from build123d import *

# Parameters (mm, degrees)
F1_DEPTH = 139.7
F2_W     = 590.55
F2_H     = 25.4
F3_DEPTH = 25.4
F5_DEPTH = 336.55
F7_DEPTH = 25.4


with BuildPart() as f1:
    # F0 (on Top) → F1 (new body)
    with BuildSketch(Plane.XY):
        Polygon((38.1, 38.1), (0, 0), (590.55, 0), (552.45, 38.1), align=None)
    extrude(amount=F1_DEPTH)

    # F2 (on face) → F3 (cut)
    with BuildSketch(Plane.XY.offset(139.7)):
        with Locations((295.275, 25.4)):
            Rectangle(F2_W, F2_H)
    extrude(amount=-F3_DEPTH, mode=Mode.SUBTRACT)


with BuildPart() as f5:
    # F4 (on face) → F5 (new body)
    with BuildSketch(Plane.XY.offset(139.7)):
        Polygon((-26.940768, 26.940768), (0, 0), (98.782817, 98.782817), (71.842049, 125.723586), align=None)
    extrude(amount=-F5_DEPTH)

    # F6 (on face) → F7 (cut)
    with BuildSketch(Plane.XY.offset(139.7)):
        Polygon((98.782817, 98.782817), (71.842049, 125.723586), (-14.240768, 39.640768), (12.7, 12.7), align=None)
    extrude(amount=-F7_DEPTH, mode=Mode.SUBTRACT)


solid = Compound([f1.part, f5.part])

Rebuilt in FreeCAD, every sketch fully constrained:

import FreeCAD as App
import Part
import Sketcher

V = App.Vector
Q = App.Units.Quantity


def add_polygon(sketch, points):
    """Adds a closed chain of lines whose ends are joined by coincident constraints."""
    first, n = sketch.GeometryCount, len(points)
    for a, b in zip(points, points[1:] + points[:1]):
        sketch.addGeometry(Part.LineSegment(App.Vector(*a, 0), App.Vector(*b, 0)), False)
    for i in range(n):
        sketch.addConstraint(Sketcher.Constraint("Coincident", first + i, 2, first + (i + 1) % n, 1))

doc = App.newDocument("Part")
params = doc.addObject("Spreadsheet::Sheet", "Params")
for row, (alias, value) in enumerate([
    ("sketch1_width", "23.25 in"),
    ("sketch1_width2", "20.25 in"),
    ("pad1_length", "5.5 in"),
    ("sketch2_height", "1 in"),
    ("sketch2_width", "23.25 in"),
    ("pocket1_length", "1 in"),
    ("sketch3_length", "1.5 in"),
    ("sketch3_length2", "5.5 in"),
    ("pad2_length", "13.25 in"),
    ("sketch4_length", "1.5 in"),
    ("pocket2_length", "1 in"),
], start=1):
    params.set(f"A{row}", alias)
    params.set(f"B{row}", "=" + value)
    params.setAlias(f"B{row}", alias)

body = doc.addObject("PartDesign::Body", "Body")

sketch1 = body.newObject("Sketcher::SketchObject", "Sketch")
sketch1.AttachmentSupport = (doc.getObject("XY_Plane"), [""])
sketch1.MapMode = "FlatFace"
add_polygon(sketch1, [(38, 38), (0, 0), (591, 0), (552, 38)])
sketch1.addConstraint([
    Sketcher.Constraint("Horizontal", 1),
    Sketcher.Constraint("Horizontal", 3),
    Sketcher.Constraint("Coincident", 0, 2, -1, 1),
    Sketcher.Constraint("Perpendicular", 0, 2),
    Sketcher.Constraint("Equal", 0, 2),
    Sketcher.Constraint("DistanceX", 1, 1, 1, 2, Q("23.25 in")),
    Sketcher.Constraint("DistanceX", 3, 2, 3, 1, Q("20.25 in")),
])
sketch1.setExpression("Constraints[9]", "Params.sketch1_width")
sketch1.setExpression("Constraints[10]", "Params.sketch1_width2")
pad1 = body.newObject("PartDesign::Pad", "Pad")
pad1.Profile = sketch1
pad1.setExpression("Length", "Params.pad1_length")

sketch2 = body.newObject("Sketcher::SketchObject", "Sketch001")
sketch2.AttachmentSupport = (doc.getObject("XY_Plane"), [""])
sketch2.MapMode = "FlatFace"
sketch2.AttachmentOffset = App.Placement(V(0, 0, 5.5 * 25.4), App.Rotation())
add_polygon(sketch2, [(0, 38), (0, 13), (591, 13), (591, 38)])
sketch2.addConstraint([
    Sketcher.Constraint("Vertical", 0),
    Sketcher.Constraint("Horizontal", 1),
    Sketcher.Constraint("Vertical", 2),
    Sketcher.Constraint("Horizontal", 3),
    Sketcher.Constraint("PointOnObject", 0, 2, -2),
    Sketcher.Constraint("DistanceY", 0, 2, 0, 1, Q("1 in")),
    Sketcher.Constraint("DistanceX", 1, 1, 1, 2, Q("23.25 in")),
    Sketcher.Constraint("DistanceY", -1, 1, 0, 2, Q("0.5 in")),
])
sketch2.setExpression("Constraints[9]", "Params.sketch2_height")
sketch2.setExpression("Constraints[10]", "Params.sketch2_width")
pocket1 = body.newObject("PartDesign::Pocket", "Pocket")
pocket1.Profile = sketch2
pocket1.setExpression("Length", "Params.pocket1_length")
body2 = doc.addObject("PartDesign::Body", "Body001")

sketch3 = body2.newObject("Sketcher::SketchObject", "Sketch002")
sketch3.AttachmentSupport = (doc.getObject("XY_Plane001"), [""])
sketch3.MapMode = "FlatFace"
sketch3.AttachmentOffset = App.Placement(V(0, 0, 5.5 * 25.4), App.Rotation())
add_polygon(sketch3, [(-27, 27), (0, 0), (99, 99), (72, 126)])
sketch3.addConstraint([
    Sketcher.Constraint("Coincident", 0, 2, -1, 1),
    Sketcher.Constraint("Perpendicular", 0, 1),
    Sketcher.Constraint("Perpendicular", 1, 2),
    Sketcher.Constraint("Perpendicular", 2, 3),
    Sketcher.Constraint("Angle", 0, Q("-45 deg")),
    Sketcher.Constraint("Distance", 0, Q("1.5 in")),
    Sketcher.Constraint("Distance", 1, Q("5.5 in")),
])
sketch3.setExpression("Constraints[9]", "Params.sketch3_length")
sketch3.setExpression("Constraints[10]", "Params.sketch3_length2")
pad2 = body2.newObject("PartDesign::Pad", "Pad001")
pad2.Profile = sketch3
pad2.setExpression("Length", "Params.pad2_length")
pad2.Reversed = True

sketch4 = body2.newObject("Sketcher::SketchObject", "Sketch003")
sketch4.AttachmentSupport = (doc.getObject("XY_Plane001"), [""])
sketch4.MapMode = "FlatFace"
sketch4.AttachmentOffset = App.Placement(V(0, 0, 5.5 * 25.4), App.Rotation())
add_polygon(sketch4, [(99, 99), (72, 126), (-14, 40), (13, 13)])
sketch4.addConstraint([
    Sketcher.Constraint("Perpendicular", 0, 1),
    Sketcher.Constraint("Perpendicular", 1, 2),
    Sketcher.Constraint("Perpendicular", 2, 3),
    Sketcher.Constraint("Angle", 0, Q("134.999999 deg")),
    Sketcher.Constraint("Distance", 0, Q("1.5 in")),
    Sketcher.Constraint("DistanceX", -1, 1, 2, 2, Q("0.5 in")),
    Sketcher.Constraint("DistanceY", -1, 1, 2, 2, Q("0.5 in")),
    Sketcher.Constraint("DistanceX", -1, 1, 0, 2, 71.842049),
])
sketch4.setExpression("Constraints[8]", "Params.sketch4_length")
pocket2 = body2.newObject("PartDesign::Pocket", "Pocket001")
pocket2.Profile = sketch4
pocket2.setExpression("Length", "Params.pocket2_length")

doc.recompute()
